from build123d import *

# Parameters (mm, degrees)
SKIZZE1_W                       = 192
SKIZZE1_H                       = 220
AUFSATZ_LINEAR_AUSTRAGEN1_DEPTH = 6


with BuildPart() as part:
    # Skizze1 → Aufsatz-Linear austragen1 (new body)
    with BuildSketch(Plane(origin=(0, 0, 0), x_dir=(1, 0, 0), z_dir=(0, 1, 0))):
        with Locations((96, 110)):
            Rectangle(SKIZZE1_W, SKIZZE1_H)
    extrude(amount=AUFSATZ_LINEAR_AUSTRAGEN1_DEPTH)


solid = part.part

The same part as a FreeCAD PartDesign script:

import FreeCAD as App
import Part
import Sketcher

V = App.Vector
Q = App.Units.Quantity


def add_polygon(sketch, points):
    """Adds a closed chain of lines whose ends are joined by coincident constraints."""
    first, n = sketch.GeometryCount, len(points)
    for a, b in zip(points, points[1:] + points[:1]):
        sketch.addGeometry(Part.LineSegment(App.Vector(*a, 0), App.Vector(*b, 0)), False)
    for i in range(n):
        sketch.addConstraint(Sketcher.Constraint("Coincident", first + i, 2, first + (i + 1) % n, 1))

doc = App.newDocument("Part")
params = doc.addObject("Spreadsheet::Sheet", "Params")
for row, (alias, value) in enumerate([
    ("sketch1_width", "192 mm"),
    ("sketch1_height", "220 mm"),
    ("pad1_length", "6 mm"),
], start=1):
    params.set(f"A{row}", alias)
    params.set(f"B{row}", "=" + value)
    params.setAlias(f"B{row}", alias)

body = doc.addObject("PartDesign::Body", "Body")

sketch1 = doc.addObject("Sketcher::SketchObject", "Sketch")
body.addObject(sketch1)
sketch1.AttachmentSupport = (doc.XZ_Plane, [""])
sketch1.MapMode = "FlatFace"
add_polygon(sketch1, [(0, -220), (0, 0), (192, 0), (192, -220)])
sketch1.addConstraint([
    Sketcher.Constraint("Vertical", 0),
    Sketcher.Constraint("Horizontal", 1),
    Sketcher.Constraint("Vertical", 2),
    Sketcher.Constraint("Horizontal", 3),
    Sketcher.Constraint("Coincident", 0, 2, -1, 1),
    Sketcher.Constraint("DistanceX", 1, 1, 1, 2, Q("192 mm")),
    Sketcher.Constraint("DistanceY", 0, 1, 0, 2, Q("220 mm")),
])
sketch1.setExpression("Constraints[9]", "Params.sketch1_width")
sketch1.setExpression("Constraints[10]", "Params.sketch1_height")
pad1 = doc.addObject("PartDesign::Pad", "Pad")
body.addObject(pad1)
pad1.Profile = sketch1
pad1.setExpression("Length", "Params.pad1_length")
pad1.Reversed = True

doc.recompute()
